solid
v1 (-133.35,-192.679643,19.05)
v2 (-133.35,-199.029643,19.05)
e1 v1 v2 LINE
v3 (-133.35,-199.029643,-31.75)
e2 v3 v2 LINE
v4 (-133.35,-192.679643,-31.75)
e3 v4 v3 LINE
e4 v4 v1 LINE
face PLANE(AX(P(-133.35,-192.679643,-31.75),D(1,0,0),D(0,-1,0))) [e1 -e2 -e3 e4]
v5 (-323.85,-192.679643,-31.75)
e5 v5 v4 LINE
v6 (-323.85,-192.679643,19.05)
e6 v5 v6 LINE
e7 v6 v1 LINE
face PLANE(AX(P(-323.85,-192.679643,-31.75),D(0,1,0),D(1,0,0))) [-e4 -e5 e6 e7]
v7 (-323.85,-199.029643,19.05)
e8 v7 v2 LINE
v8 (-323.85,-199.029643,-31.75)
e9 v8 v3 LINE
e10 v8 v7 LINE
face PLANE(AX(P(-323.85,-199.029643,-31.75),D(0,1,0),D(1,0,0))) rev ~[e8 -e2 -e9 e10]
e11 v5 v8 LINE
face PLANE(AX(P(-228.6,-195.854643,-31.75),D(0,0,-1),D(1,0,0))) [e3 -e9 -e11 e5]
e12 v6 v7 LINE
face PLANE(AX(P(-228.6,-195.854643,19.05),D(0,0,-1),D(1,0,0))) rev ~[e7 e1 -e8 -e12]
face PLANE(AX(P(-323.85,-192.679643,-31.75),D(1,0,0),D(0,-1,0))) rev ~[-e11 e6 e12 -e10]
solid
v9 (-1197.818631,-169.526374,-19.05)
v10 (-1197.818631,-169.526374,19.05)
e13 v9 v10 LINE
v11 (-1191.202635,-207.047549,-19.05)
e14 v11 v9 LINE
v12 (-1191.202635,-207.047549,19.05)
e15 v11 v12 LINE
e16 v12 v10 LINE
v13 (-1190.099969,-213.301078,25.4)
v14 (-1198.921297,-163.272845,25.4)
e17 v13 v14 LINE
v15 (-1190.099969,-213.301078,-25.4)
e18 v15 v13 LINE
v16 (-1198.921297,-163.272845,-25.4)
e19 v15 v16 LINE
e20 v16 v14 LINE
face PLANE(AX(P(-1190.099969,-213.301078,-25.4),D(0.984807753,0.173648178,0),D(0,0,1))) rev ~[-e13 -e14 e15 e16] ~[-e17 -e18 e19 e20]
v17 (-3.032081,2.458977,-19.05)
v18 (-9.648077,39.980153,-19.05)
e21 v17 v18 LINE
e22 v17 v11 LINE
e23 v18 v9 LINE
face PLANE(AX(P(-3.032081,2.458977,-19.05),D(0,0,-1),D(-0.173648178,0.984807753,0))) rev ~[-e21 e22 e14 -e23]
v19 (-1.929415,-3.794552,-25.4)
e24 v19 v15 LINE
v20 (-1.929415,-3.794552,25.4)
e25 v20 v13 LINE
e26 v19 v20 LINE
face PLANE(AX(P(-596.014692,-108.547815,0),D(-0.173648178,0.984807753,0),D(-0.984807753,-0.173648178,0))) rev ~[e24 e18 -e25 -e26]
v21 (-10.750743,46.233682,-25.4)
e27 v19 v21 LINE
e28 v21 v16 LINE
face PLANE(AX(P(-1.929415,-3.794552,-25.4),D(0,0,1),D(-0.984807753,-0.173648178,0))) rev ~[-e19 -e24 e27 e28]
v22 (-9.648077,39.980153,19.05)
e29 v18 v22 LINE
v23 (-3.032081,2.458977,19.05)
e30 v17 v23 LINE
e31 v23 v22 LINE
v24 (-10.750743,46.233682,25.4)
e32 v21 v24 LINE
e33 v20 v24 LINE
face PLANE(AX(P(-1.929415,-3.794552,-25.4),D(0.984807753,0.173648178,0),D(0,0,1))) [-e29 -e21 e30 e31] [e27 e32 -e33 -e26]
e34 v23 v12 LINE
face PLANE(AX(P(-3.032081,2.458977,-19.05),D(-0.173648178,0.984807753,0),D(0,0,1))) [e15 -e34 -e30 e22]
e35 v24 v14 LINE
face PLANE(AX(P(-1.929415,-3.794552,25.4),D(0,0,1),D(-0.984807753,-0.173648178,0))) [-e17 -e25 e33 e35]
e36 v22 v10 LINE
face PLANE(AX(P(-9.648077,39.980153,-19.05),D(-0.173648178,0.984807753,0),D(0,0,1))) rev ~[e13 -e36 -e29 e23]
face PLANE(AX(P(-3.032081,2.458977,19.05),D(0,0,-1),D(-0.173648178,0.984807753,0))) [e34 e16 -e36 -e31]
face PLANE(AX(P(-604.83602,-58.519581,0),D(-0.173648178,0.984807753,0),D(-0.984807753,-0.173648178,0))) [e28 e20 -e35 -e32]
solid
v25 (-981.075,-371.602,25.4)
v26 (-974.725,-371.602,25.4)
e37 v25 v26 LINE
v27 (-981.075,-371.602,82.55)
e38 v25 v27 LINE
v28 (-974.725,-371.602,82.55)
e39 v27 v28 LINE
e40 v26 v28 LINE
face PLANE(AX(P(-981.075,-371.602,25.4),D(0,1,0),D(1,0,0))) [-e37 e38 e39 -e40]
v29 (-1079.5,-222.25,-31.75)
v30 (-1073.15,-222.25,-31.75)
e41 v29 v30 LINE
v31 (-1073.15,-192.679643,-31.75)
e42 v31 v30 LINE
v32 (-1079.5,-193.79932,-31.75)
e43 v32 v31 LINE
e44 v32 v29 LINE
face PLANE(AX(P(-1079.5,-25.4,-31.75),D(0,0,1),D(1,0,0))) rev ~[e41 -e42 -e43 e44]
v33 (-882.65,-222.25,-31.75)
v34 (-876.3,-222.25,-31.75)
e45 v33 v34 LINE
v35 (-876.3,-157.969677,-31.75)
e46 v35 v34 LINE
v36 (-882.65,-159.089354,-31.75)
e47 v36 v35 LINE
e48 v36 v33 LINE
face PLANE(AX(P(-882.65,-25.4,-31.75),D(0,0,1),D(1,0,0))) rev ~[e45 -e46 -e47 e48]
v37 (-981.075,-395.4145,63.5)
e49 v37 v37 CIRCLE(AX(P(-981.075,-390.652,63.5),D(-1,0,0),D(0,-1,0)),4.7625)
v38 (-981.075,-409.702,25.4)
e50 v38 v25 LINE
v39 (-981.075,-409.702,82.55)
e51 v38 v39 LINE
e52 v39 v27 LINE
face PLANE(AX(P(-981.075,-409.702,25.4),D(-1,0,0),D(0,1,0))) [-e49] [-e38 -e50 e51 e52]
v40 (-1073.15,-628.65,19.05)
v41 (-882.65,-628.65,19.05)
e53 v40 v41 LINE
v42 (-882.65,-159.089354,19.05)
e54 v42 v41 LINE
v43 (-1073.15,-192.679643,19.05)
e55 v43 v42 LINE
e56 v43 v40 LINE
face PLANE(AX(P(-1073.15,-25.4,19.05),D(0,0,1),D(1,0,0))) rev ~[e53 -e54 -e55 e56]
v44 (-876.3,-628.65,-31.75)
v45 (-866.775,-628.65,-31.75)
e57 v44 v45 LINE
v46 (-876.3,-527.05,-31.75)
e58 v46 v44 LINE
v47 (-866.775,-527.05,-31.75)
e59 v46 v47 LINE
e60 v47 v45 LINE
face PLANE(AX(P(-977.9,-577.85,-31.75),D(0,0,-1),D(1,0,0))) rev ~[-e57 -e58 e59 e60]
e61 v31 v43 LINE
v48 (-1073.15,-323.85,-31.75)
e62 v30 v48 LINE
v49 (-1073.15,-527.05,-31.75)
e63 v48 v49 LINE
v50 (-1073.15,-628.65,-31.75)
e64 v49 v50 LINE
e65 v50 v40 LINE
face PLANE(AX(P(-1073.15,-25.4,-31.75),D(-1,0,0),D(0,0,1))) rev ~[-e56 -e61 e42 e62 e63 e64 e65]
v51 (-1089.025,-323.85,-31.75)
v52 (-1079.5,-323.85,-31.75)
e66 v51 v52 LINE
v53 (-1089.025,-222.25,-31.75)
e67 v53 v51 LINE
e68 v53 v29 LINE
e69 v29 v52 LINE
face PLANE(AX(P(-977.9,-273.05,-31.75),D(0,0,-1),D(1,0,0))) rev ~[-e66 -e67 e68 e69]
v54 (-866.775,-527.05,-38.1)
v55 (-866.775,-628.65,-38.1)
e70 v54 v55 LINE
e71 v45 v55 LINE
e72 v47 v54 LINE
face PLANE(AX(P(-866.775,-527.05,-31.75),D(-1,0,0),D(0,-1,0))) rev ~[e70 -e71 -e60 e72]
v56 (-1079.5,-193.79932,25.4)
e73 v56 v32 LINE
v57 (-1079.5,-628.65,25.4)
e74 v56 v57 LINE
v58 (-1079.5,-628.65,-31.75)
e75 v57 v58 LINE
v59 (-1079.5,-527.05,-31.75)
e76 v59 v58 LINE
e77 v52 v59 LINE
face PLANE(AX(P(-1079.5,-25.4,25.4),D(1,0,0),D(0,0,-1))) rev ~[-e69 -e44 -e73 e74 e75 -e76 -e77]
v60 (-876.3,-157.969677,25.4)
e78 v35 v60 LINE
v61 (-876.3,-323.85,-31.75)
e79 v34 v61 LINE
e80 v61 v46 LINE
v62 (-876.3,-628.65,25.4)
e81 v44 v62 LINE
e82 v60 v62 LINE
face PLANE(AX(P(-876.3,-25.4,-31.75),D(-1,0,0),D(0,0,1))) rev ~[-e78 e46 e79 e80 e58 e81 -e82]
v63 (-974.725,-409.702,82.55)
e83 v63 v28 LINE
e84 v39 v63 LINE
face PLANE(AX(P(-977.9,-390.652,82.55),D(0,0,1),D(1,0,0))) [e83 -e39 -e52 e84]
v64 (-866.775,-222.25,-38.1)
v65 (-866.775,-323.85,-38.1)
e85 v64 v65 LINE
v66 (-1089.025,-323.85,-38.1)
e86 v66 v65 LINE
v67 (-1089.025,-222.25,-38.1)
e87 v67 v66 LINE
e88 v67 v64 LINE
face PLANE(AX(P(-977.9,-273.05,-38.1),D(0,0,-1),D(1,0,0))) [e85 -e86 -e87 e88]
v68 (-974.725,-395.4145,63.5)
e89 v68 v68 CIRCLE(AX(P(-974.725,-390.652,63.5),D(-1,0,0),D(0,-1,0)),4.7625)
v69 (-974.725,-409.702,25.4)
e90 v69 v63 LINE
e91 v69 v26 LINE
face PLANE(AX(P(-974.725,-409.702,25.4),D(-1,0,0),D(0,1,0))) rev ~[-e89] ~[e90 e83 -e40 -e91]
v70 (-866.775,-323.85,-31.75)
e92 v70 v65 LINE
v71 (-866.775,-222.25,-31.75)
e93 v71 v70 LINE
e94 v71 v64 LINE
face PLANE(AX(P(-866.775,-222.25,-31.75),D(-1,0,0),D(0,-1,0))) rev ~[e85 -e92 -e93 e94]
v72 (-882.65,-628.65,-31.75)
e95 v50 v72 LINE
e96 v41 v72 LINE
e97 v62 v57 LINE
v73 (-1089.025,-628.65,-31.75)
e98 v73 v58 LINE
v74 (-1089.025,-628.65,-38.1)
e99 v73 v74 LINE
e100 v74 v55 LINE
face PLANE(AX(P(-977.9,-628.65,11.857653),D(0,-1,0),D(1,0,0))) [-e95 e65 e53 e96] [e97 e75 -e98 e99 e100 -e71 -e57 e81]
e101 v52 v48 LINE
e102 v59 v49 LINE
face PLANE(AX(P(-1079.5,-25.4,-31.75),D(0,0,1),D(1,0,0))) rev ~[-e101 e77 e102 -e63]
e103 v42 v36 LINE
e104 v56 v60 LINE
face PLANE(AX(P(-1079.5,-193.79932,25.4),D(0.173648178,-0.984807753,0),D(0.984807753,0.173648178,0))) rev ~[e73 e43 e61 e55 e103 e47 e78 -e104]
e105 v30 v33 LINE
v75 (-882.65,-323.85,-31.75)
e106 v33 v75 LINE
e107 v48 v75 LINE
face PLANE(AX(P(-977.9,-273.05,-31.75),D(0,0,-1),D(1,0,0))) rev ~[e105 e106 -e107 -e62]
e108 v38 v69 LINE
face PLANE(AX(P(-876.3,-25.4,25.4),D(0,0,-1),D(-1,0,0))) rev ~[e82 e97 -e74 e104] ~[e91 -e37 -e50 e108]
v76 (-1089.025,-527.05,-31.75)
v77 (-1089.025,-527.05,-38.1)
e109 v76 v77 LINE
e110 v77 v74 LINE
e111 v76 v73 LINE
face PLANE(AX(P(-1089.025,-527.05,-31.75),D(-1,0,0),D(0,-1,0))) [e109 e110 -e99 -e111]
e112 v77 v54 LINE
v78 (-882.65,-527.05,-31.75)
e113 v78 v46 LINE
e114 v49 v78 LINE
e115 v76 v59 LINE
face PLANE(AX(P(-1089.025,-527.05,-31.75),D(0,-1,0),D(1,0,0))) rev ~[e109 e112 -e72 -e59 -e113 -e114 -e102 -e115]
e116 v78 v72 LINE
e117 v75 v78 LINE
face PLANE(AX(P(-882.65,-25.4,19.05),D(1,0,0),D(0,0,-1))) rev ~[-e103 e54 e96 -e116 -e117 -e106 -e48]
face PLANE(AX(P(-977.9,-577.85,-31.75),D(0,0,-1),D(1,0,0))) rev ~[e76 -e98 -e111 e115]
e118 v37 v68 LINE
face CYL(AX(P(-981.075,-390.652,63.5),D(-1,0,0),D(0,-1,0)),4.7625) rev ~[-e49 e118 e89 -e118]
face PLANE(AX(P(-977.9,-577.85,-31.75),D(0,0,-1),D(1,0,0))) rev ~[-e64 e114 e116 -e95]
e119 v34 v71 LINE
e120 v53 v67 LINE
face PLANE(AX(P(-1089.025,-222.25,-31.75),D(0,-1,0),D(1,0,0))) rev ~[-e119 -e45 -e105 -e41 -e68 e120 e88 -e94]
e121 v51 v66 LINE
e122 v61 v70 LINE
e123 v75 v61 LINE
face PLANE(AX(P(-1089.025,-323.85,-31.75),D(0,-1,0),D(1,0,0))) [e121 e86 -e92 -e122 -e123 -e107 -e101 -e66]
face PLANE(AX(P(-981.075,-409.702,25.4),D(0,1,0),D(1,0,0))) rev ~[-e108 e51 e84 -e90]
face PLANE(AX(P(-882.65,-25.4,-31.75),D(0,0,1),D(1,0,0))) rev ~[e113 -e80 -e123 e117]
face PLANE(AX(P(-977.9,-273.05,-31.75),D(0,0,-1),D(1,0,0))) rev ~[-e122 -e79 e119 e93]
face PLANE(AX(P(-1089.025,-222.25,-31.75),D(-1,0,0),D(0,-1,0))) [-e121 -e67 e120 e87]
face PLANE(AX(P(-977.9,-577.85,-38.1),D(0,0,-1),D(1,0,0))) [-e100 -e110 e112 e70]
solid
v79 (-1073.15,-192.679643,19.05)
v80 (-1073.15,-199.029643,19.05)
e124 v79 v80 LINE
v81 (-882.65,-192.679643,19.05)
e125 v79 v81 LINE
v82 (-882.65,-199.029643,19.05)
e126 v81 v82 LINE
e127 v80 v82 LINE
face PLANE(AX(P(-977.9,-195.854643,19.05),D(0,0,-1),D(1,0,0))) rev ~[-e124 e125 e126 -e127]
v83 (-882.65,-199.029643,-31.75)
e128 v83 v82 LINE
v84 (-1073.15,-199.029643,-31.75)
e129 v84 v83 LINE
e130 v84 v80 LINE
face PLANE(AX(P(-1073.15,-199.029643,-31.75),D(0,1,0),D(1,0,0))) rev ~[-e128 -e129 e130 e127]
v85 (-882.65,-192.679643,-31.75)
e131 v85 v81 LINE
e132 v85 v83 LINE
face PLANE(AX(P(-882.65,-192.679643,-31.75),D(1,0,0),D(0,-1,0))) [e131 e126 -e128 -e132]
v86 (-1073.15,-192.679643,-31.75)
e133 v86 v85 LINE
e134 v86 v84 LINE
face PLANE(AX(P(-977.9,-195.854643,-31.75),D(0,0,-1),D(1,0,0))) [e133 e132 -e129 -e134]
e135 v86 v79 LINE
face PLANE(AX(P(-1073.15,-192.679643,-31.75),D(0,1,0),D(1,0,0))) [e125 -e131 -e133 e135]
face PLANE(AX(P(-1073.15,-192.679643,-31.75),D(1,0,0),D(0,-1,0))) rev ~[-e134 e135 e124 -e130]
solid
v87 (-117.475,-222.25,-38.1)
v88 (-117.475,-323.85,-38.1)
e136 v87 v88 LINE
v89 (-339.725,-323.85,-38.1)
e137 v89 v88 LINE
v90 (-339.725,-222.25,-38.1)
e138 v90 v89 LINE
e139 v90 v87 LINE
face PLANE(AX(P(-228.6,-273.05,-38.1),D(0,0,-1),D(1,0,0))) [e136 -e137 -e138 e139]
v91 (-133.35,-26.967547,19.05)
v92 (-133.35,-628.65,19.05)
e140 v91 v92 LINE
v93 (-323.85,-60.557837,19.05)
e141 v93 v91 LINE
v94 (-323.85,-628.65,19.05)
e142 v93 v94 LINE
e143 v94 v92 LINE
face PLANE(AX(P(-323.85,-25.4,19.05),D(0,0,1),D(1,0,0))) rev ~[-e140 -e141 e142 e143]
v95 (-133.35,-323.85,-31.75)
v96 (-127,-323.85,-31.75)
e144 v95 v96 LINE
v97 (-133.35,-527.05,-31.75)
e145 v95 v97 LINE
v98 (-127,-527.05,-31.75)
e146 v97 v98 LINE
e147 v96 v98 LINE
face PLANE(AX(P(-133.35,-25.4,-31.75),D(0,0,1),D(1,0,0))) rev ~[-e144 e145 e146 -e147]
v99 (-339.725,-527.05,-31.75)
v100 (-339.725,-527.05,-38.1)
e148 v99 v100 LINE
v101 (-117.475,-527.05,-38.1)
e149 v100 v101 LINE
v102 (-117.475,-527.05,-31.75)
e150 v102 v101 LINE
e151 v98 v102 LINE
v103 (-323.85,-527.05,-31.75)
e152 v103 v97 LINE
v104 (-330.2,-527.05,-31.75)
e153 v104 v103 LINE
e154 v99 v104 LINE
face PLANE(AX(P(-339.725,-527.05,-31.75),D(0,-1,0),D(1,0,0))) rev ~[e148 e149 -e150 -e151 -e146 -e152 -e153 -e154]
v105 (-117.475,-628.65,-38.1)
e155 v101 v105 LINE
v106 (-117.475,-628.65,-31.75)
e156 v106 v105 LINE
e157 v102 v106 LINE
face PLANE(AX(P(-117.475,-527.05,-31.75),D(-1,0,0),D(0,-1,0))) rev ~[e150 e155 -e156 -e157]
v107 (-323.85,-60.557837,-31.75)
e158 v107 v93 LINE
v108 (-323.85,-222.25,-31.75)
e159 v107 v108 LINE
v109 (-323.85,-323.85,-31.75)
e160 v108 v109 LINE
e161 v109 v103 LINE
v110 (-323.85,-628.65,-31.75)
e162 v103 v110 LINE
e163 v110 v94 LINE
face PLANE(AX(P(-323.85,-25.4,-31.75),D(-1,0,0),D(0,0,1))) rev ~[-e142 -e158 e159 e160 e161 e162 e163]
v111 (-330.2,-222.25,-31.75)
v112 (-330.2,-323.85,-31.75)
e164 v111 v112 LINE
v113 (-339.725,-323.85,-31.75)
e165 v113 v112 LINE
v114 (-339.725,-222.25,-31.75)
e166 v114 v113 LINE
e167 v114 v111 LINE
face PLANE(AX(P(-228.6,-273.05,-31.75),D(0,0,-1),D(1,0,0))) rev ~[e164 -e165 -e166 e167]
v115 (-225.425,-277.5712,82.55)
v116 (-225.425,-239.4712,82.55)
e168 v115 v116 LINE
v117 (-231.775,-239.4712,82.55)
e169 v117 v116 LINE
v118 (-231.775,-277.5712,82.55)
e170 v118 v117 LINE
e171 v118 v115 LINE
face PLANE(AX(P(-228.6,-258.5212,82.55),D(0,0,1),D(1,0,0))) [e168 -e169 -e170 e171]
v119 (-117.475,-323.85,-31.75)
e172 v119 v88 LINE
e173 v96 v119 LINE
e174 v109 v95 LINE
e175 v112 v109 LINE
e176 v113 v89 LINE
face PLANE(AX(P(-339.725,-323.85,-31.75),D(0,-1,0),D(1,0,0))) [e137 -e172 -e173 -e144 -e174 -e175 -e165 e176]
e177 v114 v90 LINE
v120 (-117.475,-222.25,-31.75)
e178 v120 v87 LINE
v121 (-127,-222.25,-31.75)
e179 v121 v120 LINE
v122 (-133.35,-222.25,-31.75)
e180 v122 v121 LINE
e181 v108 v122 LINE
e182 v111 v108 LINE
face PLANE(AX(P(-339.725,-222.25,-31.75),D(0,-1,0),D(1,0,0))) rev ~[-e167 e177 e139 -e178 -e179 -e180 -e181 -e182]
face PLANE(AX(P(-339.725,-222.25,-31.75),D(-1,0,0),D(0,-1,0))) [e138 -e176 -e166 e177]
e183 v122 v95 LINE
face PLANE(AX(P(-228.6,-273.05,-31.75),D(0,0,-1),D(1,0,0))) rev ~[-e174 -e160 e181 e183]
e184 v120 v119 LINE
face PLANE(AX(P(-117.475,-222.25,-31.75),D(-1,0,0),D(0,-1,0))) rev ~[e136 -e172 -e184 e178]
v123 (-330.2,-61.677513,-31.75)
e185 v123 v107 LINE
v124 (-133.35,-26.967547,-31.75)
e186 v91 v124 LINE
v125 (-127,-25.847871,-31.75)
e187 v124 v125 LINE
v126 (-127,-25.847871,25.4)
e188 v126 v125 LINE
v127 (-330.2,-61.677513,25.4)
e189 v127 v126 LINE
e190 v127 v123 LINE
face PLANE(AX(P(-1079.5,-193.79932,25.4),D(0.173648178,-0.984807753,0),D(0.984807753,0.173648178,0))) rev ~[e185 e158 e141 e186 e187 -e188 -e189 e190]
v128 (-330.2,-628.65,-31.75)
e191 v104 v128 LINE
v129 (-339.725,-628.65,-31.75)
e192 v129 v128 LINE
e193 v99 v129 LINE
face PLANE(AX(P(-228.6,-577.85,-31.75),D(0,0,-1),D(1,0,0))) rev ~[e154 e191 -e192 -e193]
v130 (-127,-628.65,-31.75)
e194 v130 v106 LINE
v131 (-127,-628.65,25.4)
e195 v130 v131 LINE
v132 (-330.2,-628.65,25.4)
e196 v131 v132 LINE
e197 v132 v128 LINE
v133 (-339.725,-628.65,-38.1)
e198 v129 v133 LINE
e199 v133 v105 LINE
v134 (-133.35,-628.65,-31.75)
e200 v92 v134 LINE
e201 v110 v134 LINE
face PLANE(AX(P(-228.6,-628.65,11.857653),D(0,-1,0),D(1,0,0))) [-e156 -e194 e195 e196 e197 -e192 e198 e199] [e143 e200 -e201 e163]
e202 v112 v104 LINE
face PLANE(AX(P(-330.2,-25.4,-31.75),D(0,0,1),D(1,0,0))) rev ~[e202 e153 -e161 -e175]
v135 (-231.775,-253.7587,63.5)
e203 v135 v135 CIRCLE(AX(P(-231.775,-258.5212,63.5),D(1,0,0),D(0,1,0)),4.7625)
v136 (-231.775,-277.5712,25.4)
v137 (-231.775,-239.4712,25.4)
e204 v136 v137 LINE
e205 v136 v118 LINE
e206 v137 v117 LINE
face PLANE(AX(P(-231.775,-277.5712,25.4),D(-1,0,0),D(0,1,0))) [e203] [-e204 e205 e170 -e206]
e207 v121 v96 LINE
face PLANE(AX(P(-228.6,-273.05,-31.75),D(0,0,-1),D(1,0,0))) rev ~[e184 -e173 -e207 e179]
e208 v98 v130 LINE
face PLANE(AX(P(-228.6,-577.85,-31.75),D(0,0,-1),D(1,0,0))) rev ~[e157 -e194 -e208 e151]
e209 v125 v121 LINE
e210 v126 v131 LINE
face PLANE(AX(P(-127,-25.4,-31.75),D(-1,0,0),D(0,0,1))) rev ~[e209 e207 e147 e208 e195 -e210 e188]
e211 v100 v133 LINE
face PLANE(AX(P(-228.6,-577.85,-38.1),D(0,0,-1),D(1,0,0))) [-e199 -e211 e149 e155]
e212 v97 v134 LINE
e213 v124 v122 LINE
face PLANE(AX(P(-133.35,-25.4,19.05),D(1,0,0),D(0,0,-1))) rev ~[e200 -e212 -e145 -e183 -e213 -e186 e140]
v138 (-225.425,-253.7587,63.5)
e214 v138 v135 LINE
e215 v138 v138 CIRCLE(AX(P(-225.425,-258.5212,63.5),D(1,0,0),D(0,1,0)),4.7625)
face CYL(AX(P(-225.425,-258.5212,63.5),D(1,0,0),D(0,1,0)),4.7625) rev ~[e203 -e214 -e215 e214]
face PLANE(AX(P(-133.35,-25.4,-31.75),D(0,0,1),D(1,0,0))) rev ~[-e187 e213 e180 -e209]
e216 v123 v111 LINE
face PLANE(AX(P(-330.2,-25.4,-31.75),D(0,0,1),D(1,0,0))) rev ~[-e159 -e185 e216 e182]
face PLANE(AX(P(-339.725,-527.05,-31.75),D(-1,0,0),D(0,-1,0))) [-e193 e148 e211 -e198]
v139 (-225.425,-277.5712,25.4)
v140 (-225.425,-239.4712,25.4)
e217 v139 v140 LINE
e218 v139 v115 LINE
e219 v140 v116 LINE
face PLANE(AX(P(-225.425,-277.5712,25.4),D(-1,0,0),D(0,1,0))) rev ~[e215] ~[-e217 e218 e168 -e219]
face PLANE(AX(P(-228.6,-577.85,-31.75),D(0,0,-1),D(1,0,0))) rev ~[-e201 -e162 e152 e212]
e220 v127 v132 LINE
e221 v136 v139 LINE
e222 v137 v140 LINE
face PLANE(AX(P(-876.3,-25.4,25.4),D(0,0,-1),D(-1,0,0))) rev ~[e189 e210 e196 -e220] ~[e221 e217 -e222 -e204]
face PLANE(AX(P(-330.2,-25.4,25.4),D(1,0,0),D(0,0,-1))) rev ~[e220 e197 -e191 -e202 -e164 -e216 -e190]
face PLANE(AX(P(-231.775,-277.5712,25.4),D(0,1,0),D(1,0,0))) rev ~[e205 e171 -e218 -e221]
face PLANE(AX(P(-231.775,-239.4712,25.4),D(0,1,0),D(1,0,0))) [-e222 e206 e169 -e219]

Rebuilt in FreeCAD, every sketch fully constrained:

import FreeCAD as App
import Part
import Sketcher
Q = App.Units.Quantity

doc = App.newDocument("Part")
params = doc.addObject("Spreadsheet::Sheet", "Params")
for row, (alias, value) in enumerate([
    ("sketch1_width", "2 in"),
    ("sketch1_width2", "1.5 in"),
    ("pad1_length", "47.5 in"),
    ("sketch2_width", "8 in"),
    ("sketch2_height", "2 in"),
    ("sketch2_width2", "7.5 in"),
    ("sketch2_height2", "2.25 in"),
    ("pad2_length", "23.75 in"),
    ("sketch3_height", "4 in"),
    ("sketch3_width", "8.75 in"),
    ("pad3_length", "0.25 in"),
    ("sketch4_height", "1.5 in"),
    ("sketch4_width", "0.25 in"),
    ("pad4_length", "2.25 in"),
    ("sketch5_diameter", "0.375 in"),
    ("pocket1_length", "30 in"),
    ("sketch6_width", "37.5 in"),
    ("pocket2_length", "5 in"),
    ("pocket3_length", "5 in"),
    ("sketch8_diameter", "0.375 in"),
    ("pocket4_length", "1 in"),
    ("sketch9_height", "2 in"),
    ("sketch9_width", "47.5 in"),
    ("pad5_length", "2 in"),
    ("sketch10_width", "1.5 in"),
    ("pocket5_length", "50 in"),
    ("sketch11_width", "7.5 in"),
    ("sketch11_height", "0.25 in"),
    ("pad6_length", "2 in"),
    ("sketch12_width", "7.5 in"),
    ("sketch12_height", "0.25 in"),
    ("pad7_length", "2 in"),
], start=1):
    params.set(f"A{row}", alias)
    params.set(f"B{row}", "=" + value)
    params.setAlias(f"B{row}", alias)

body = doc.addObject("PartDesign::Body", "Body")
body.AllowCompound = True

# Sketch on YZ plane
sketch1 = body.newObject("Sketcher::SketchObject", "Sketch")
sketch1.AttachmentSupport = (doc.getObject("YZ_Plane"), [""])
sketch1.MapMode = "FlatFace"
sketch1.addGeometry([
    Part.LineSegment(App.Vector(-25, 25, 0), App.Vector(-25, -25, 0)),  # 0
    Part.LineSegment(App.Vector(-25, -25, 0), App.Vector(25, -25, 0)),  # 1
    Part.LineSegment(App.Vector(25, -25, 0), App.Vector(25, 25, 0)),  # 2
    Part.LineSegment(App.Vector(25, 25, 0), App.Vector(-25, 25, 0)),  # 3
    Part.LineSegment(App.Vector(19, -19, 0), App.Vector(-19, -19, 0)),  # 4
    Part.LineSegment(App.Vector(-19, -19, 0), App.Vector(-19, 19, 0)),  # 5
    Part.LineSegment(App.Vector(-19, 19, 0), App.Vector(19, 19, 0)),  # 6
    Part.LineSegment(App.Vector(19, 19, 0), App.Vector(19, -19, 0)),  # 7
], False)
sketch1.addConstraint([
    Sketcher.Constraint("Coincident", 0, 2, 1, 1),
    Sketcher.Constraint("Coincident", 1, 2, 2, 1),
    Sketcher.Constraint("Coincident", 2, 2, 3, 1),
    Sketcher.Constraint("Coincident", 3, 2, 0, 1),
    Sketcher.Constraint("Coincident", 4, 2, 5, 1),
    Sketcher.Constraint("Coincident", 5, 2, 6, 1),
    Sketcher.Constraint("Coincident", 6, 2, 7, 1),
    Sketcher.Constraint("Coincident", 7, 2, 4, 1),
    Sketcher.Constraint("Vertical", 0),
    Sketcher.Constraint("Horizontal", 1),
    Sketcher.Constraint("Vertical", 2),
    Sketcher.Constraint("Horizontal", 3),
    Sketcher.Constraint("Horizontal", 4),
    Sketcher.Constraint("Vertical", 5),
    Sketcher.Constraint("Horizontal", 6),
    Sketcher.Constraint("Vertical", 7),
    Sketcher.Constraint("Symmetric", 0, 2, 2, 2, -1, 1),
    Sketcher.Constraint("Symmetric", 4, 2, 6, 2, -1, 1),
    Sketcher.Constraint("Equal", 3, 0),
    Sketcher.Constraint("Equal", 6, 5),
    Sketcher.Constraint("DistanceX", 1, 1, 1, 2, Q("2 in")),
    Sketcher.Constraint("DistanceX", 4, 2, 4, 1, Q("1.5 in")),
])
sketch1.setExpression("Constraints[20]", "Params.sketch1_width")
sketch1.setExpression("Constraints[21]", "Params.sketch1_width2")
pad1 = body.newObject("PartDesign::Pad", "Pad")
pad1.Profile = sketch1
pad1.setExpression("Length", "Params.pad1_length")
pad1.Reversed = True

# Sketch on XZ plane
sketch2 = body.newObject("Sketcher::SketchObject", "Sketch001")
sketch2.AttachmentSupport = (doc.getObject("XZ_Plane"), [""])
sketch2.MapMode = "FlatFace"
sketch2.AttachmentOffset = App.Placement(App.Vector(0, 0, 1 * 25.4), App.Rotation())
sketch2.addGeometry([
    Part.LineSegment(App.Vector(-876, 25, 0), App.Vector(-1080, 25, 0)),  # 0
    Part.LineSegment(App.Vector(-1080, 25, 0), App.Vector(-1080, -32, 0)),  # 1
    Part.LineSegment(App.Vector(-1080, -32, 0), App.Vector(-1073, -32, 0)),  # 2
    Part.LineSegment(App.Vector(-1073, -32, 0), App.Vector(-1073, 19, 0)),  # 3
    Part.LineSegment(App.Vector(-1073, 19, 0), App.Vector(-883, 19, 0)),  # 4
    Part.LineSegment(App.Vector(-883, 19, 0), App.Vector(-883, -32, 0)),  # 5
    Part.LineSegment(App.Vector(-883, -32, 0), App.Vector(-876, -32, 0)),  # 6
    Part.LineSegment(App.Vector(-876, -32, 0), App.Vector(-876, 25, 0)),  # 7
    Part.LineSegment(App.Vector(-127, -32, 0), App.Vector(-127, 25, 0)),  # 8
    Part.LineSegment(App.Vector(-127, 25, 0), App.Vector(-330, 25, 0)),  # 9
    Part.LineSegment(App.Vector(-330, 25, 0), App.Vector(-330, -32, 0)),  # 10
    Part.LineSegment(App.Vector(-330, -32, 0), App.Vector(-324, -32, 0)),  # 11
    Part.LineSegment(App.Vector(-324, -32, 0), App.Vector(-324, 19, 0)),  # 12
    Part.LineSegment(App.Vector(-324, 19, 0), App.Vector(-133, 19, 0)),  # 13
    Part.LineSegment(App.Vector(-133, 19, 0), App.Vector(-133, -32, 0)),  # 14
    Part.LineSegment(App.Vector(-133, -32, 0), App.Vector(-127, -32, 0)),  # 15
], False)
sketch2.addConstraint([
    Sketcher.Constraint("Coincident", 0, 2, 1, 1),
    Sketcher.Constraint("Coincident", 1, 2, 2, 1),
    Sketcher.Constraint("Coincident", 2, 2, 3, 1),
    Sketcher.Constraint("Coincident", 3, 2, 4, 1),
    Sketcher.Constraint("Coincident", 4, 2, 5, 1),
    Sketcher.Constraint("Coincident", 5, 2, 6, 1),
    Sketcher.Constraint("Coincident", 6, 2, 7, 1),
    Sketcher.Constraint("Coincident", 7, 2, 0, 1),
    Sketcher.Constraint("Coincident", 8, 2, 9, 1),
    Sketcher.Constraint("Coincident", 9, 2, 10, 1),
    Sketcher.Constraint("Coincident", 10, 2, 11, 1),
    Sketcher.Constraint("Coincident", 11, 2, 12, 1),
    Sketcher.Constraint("Coincident", 12, 2, 13, 1),
    Sketcher.Constraint("Coincident", 13, 2, 14, 1),
    Sketcher.Constraint("Coincident", 14, 2, 15, 1),
    Sketcher.Constraint("Coincident", 15, 2, 8, 1),
    Sketcher.Constraint("Horizontal", 0),
    Sketcher.Constraint("Vertical", 1),
    Sketcher.Constraint("Horizontal", 2),
    Sketcher.Constraint("Vertical", 3),
    Sketcher.Constraint("Horizontal", 4),
    Sketcher.Constraint("Vertical", 5),
    Sketcher.Constraint("Horizontal", 6),
    Sketcher.Constraint("Vertical", 7),
    Sketcher.Constraint("Vertical", 8),
    Sketcher.Constraint("Horizontal", 9),
    Sketcher.Constraint("Vertical", 10),
    Sketcher.Constraint("Horizontal", 11),
    Sketcher.Constraint("Vertical", 12),
    Sketcher.Constraint("Horizontal", 13),
    Sketcher.Constraint("Vertical", 14),
    Sketcher.Constraint("Horizontal", 15),
    Sketcher.Constraint("Horizontal", 2, 2, 5, 2),
    Sketcher.Constraint("Horizontal", 7, 2, 8, 2),
    Sketcher.Constraint("Horizontal", 6, 2, 10, 2),
    Sketcher.Constraint("Horizontal", 4, 2, 12, 2),
    Sketcher.Constraint("Horizontal", 11, 2, 14, 2),
    Sketcher.Constraint("Equal", 2, 6),
    Sketcher.Constraint("Equal", 0, 9),
    Sketcher.Constraint("Equal", 6, 11),
    Sketcher.Constraint("Equal", 4, 13),
    Sketcher.Constraint("DistanceX", 0, 2, 0, 1, Q("8 in")),
    Sketcher.Constraint("DistanceY", 3, 1, 3, 2, Q("2 in")),
    Sketcher.Constraint("DistanceX", 4, 1, 4, 2, Q("7.5 in")),
    Sketcher.Constraint("DistanceY", -1, 1, 0, 2, Q("1 in")),
    Sketcher.Constraint("DistanceX", 8, 2, -1, 1, Q("5 in")),
    Sketcher.Constraint("DistanceY", 1, 2, 1, 1, Q("2.25 in")),
    Sketcher.Constraint("DistanceX", 0, 2, -1, 1, Q("42.5 in")),
])
sketch2.setExpression("Constraints[41]", "Params.sketch2_width")
sketch2.setExpression("Constraints[42]", "Params.sketch2_height")
sketch2.setExpression("Constraints[43]", "Params.sketch2_width2")
sketch2.setExpression("Constraints[46]", "Params.sketch2_height2")
pad2 = body.newObject("PartDesign::Pad", "Pad001")
pad2.Profile = sketch2
pad2.setExpression("Length", "Params.pad2_length")

# Sketch on XY plane
sketch3 = body.newObject("Sketcher::SketchObject", "Sketch002")
sketch3.AttachmentSupport = (doc.getObject("XY_Plane"), [""])
sketch3.MapMode = "FlatFace"
sketch3.AttachmentOffset = App.Placement(App.Vector(0, 0, -1.25 * 25.4), App.Rotation())
sketch3.addGeometry([
    Part.LineSegment(App.Vector(-340, -324, 0), App.Vector(-340, -222, 0)),  # 0
    Part.LineSegment(App.Vector(-340, -222, 0), App.Vector(-117, -222, 0)),  # 1
    Part.LineSegment(App.Vector(-117, -222, 0), App.Vector(-117, -324, 0)),  # 2
    Part.LineSegment(App.Vector(-117, -324, 0), App.Vector(-340, -324, 0)),  # 3
    Part.LineSegment(App.Vector(-340, -629, 0), App.Vector(-340, -527, 0)),  # 4
    Part.LineSegment(App.Vector(-340, -527, 0), App.Vector(-117, -527, 0)),  # 5
    Part.LineSegment(App.Vector(-117, -527, 0), App.Vector(-117, -629, 0)),  # 6
    Part.LineSegment(App.Vector(-117, -629, 0), App.Vector(-340, -629, 0)),  # 7
    Part.LineSegment(App.Vector(-1089, -324, 0), App.Vector(-1089, -222, 0)),  # 8
    Part.LineSegment(App.Vector(-1089, -222, 0), App.Vector(-867, -222, 0)),  # 9
    Part.LineSegment(App.Vector(-867, -222, 0), App.Vector(-867, -324, 0)),  # 10
    Part.LineSegment(App.Vector(-867, -324, 0), App.Vector(-1089, -324, 0)),  # 11
    Part.LineSegment(App.Vector(-1089, -629, 0), App.Vector(-1089, -527, 0)),  # 12
    Part.LineSegment(App.Vector(-1089, -527, 0), App.Vector(-867, -527, 0)),  # 13
    Part.LineSegment(App.Vector(-867, -527, 0), App.Vector(-867, -629, 0)),  # 14
    Part.LineSegment(App.Vector(-867, -629, 0), App.Vector(-1089, -629, 0)),  # 15
], False)
sketch3.addConstraint([
    Sketcher.Constraint("Coincident", 0, 2, 1, 1),
    Sketcher.Constraint("Coincident", 1, 2, 2, 1),
    Sketcher.Constraint("Coincident", 2, 2, 3, 1),
    Sketcher.Constraint("Coincident", 3, 2, 0, 1),
    Sketcher.Constraint("Coincident", 4, 2, 5, 1),
    Sketcher.Constraint("Coincident", 5, 2, 6, 1),
    Sketcher.Constraint("Coincident", 6, 2, 7, 1),
    Sketcher.Constraint("Coincident", 7, 2, 4, 1),
    Sketcher.Constraint("Coincident", 8, 2, 9, 1),
    Sketcher.Constraint("Coincident", 9, 2, 10, 1),
    Sketcher.Constraint("Coincident", 10, 2, 11, 1),
    Sketcher.Constraint("Coincident", 11, 2, 8, 1),
    Sketcher.Constraint("Coincident", 12, 2, 13, 1),
    Sketcher.Constraint("Coincident", 13, 2, 14, 1),
    Sketcher.Constraint("Coincident", 14, 2, 15, 1),
    Sketcher.Constraint("Coincident", 15, 2, 12, 1),
    Sketcher.Constraint("Vertical", 0),
    Sketcher.Constraint("Horizontal", 1),
    Sketcher.Constraint("Vertical", 2),
    Sketcher.Constraint("Horizontal", 3),
    Sketcher.Constraint("Vertical", 4),
    Sketcher.Constraint("Horizontal", 5),
    Sketcher.Constraint("Vertical", 6),
    Sketcher.Constraint("Horizontal", 7),
    Sketcher.Constraint("Vertical", 8),
    Sketcher.Constraint("Horizontal", 9),
    Sketcher.Constraint("Vertical", 10),
    Sketcher.Constraint("Horizontal", 11),
    Sketcher.Constraint("Vertical", 12),
    Sketcher.Constraint("Horizontal", 13),
    Sketcher.Constraint("Vertical", 14),
    Sketcher.Constraint("Horizontal", 15),
    Sketcher.Constraint("Horizontal", 1, 2, 8, 2),
    Sketcher.Constraint("Horizontal", 3, 2, 10, 2),
    Sketcher.Constraint("Horizontal", 5, 2, 12, 2),
    Sketcher.Constraint("Horizontal", 7, 2, 14, 2),
    Sketcher.Constraint("Vertical", 3, 2, 4, 2),
    Sketcher.Constraint("Vertical", 2, 2, 5, 2),
    Sketcher.Constraint("Vertical", 11, 2, 12, 2),
    Sketcher.Constraint("Vertical", 10, 2, 13, 2),
    Sketcher.Constraint("Equal", 7, 9),
    Sketcher.Constraint("Equal", 2, 4),
    Sketcher.Constraint("DistanceY", 0, 1, 0, 2, Q("4 in")),
    Sketcher.Constraint("DistanceY", 4, 2, 3, 2, Q("8 in")),
    Sketcher.Constraint("DistanceX", 1, 1, 1, 2, Q("8.75 in")),
    Sketcher.Constraint("DistanceX", 8, 2, 0, 2, Q("29.5 in")),
    Sketcher.Constraint("DistanceY", 0, 2, -1, 1, Q("8.75 in")),
    Sketcher.Constraint("DistanceX", 0, 2, -1, 1, Q("13.375 in")),
])
sketch3.setExpression("Constraints[42]", "Params.sketch3_height")
sketch3.setExpression("Constraints[44]", "Params.sketch3_width")
pad3 = body.newObject("PartDesign::Pad", "Pad002")
pad3.Profile = sketch3
pad3.setExpression("Length", "Params.pad3_length")
pad3.Reversed = True

# Sketch on XY plane
sketch4 = body.newObject("Sketcher::SketchObject", "Sketch003")
sketch4.AttachmentSupport = (doc.getObject("XY_Plane"), [""])
sketch4.MapMode = "FlatFace"
sketch4.AttachmentOffset = App.Placement(App.Vector(0, 0, 1 * 25.4), App.Rotation())
sketch4.addGeometry([
    Part.LineSegment(App.Vector(-232, -239, 0), App.Vector(-232, -278, 0)),  # 0
    Part.LineSegment(App.Vector(-232, -278, 0), App.Vector(-225, -278, 0)),  # 1
    Part.LineSegment(App.Vector(-225, -278, 0), App.Vector(-225, -239, 0)),  # 2
    Part.LineSegment(App.Vector(-225, -239, 0), App.Vector(-232, -239, 0)),  # 3
    Part.LineSegment(App.Vector(-981, -372, 0), App.Vector(-981, -410, 0)),  # 4
    Part.LineSegment(App.Vector(-981, -410, 0), App.Vector(-975, -410, 0)),  # 5
    Part.LineSegment(App.Vector(-975, -410, 0), App.Vector(-975, -372, 0)),  # 6
    Part.LineSegment(App.Vector(-975, -372, 0), App.Vector(-981, -372, 0)),  # 7
], False)
sketch4.addConstraint([
    Sketcher.Constraint("Coincident", 0, 2, 1, 1),
    Sketcher.Constraint("Coincident", 1, 2, 2, 1),
    Sketcher.Constraint("Coincident", 2, 2, 3, 1),
    Sketcher.Constraint("Coincident", 3, 2, 0, 1),
    Sketcher.Constraint("Coincident", 4, 2, 5, 1),
    Sketcher.Constraint("Coincident", 5, 2, 6, 1),
    Sketcher.Constraint("Coincident", 6, 2, 7, 1),
    Sketcher.Constraint("Coincident", 7, 2, 4, 1),
    Sketcher.Constraint("Vertical", 0),
    Sketcher.Constraint("Horizontal", 1),
    Sketcher.Constraint("Vertical", 2),
    Sketcher.Constraint("Horizontal", 3),
    Sketcher.Constraint("Vertical", 4),
    Sketcher.Constraint("Horizontal", 5),
    Sketcher.Constraint("Vertical", 6),
    Sketcher.Constraint("Horizontal", 7),
    Sketcher.Constraint("Equal", 3, 5),
    Sketcher.Constraint("Equal", 2, 4),
    Sketcher.Constraint("DistanceY", 0, 2, 0, 1, Q("1.5 in")),
    Sketcher.Constraint("DistanceX", 1, 1, 1, 2, Q("0.25 in")),
    Sketcher.Constraint("DistanceX", 4, 2, 0, 2, Q("29.5 in")),
    Sketcher.Constraint("DistanceY", 4, 2, -1, 1, Q("16.13 in")),
    Sketcher.Constraint("DistanceX", 0, 2, -1, 1, Q("9.125 in")),
    Sketcher.Constraint("DistanceY", 0, 2, -1, 1, Q("10.928 in")),
])
sketch4.setExpression("Constraints[18]", "Params.sketch4_height")
sketch4.setExpression("Constraints[19]", "Params.sketch4_width")
pad4 = body.newObject("PartDesign::Pad", "Pad003")
pad4.Profile = sketch4
pad4.setExpression("Length", "Params.pad4_length")

# Sketch on YZ plane
sketch5 = body.newObject("Sketcher::SketchObject", "Sketch004")
sketch5.AttachmentSupport = (doc.getObject("YZ_Plane"), [""])
sketch5.MapMode = "FlatFace"
sketch5.AttachmentOffset = App.Placement(App.Vector(0, 0, -8.875 * 25.4), App.Rotation())
sketch5.addGeometry(Part.Circle(App.Vector(-258.5, 63.5, 0), App.Vector(0, 0, 1), 4.8), False)
sketch5.addConstraint([
    Sketcher.Constraint("Diameter", 0, Q("0.375 in")),
    Sketcher.Constraint("DistanceY", -1, 1, 0, 3, Q("2.5 in")),
    Sketcher.Constraint("DistanceX", 0, 3, -1, 1, Q("10.178 in")),
])
sketch5.setExpression("Constraints[0]", "Params.sketch5_diameter")
pocket1 = body.newObject("PartDesign::Pocket", "Pocket")
pocket1.Profile = sketch5
pocket1.setExpression("Length", "Params.pocket1_length")

# Sketch on XY plane
sketch6 = body.newObject("Sketcher::SketchObject", "Sketch005")
sketch6.AttachmentSupport = (doc.getObject("XY_Plane"), [""])
sketch6.MapMode = "FlatFace"
sketch6.AttachmentOffset = App.Placement(App.Vector(0, 0, 1 * 25.4), App.Rotation())
sketch6.addGeometry([
    Part.LineSegment(App.Vector(-1079.5, -25.4, 0), App.Vector(-1079.5, -193.8, 0)),
    Part.LineSegment(App.Vector(-1079.5, -193.8, 0), App.Vector(-127, -25.85, 0)),
    Part.LineSegment(App.Vector(-127, -25.85, 0), App.Vector(-127, -25.4, 0)),
    Part.LineSegment(App.Vector(-127, -25.4, 0), App.Vector(-1079.5, -25.4, 0)),
], False)
sketch6.addConstraint([
    Sketcher.Constraint("Coincident", 0, 2, 1, 1),
    Sketcher.Constraint("Coincident", 1, 2, 2, 1),
    Sketcher.Constraint("Coincident", 2, 2, 3, 1),
    Sketcher.Constraint("Coincident", 3, 2, 0, 1),
    Sketcher.Constraint("Vertical", 0),
    Sketcher.Constraint("Vertical", 2),
    Sketcher.Constraint("Horizontal", 3),
    Sketcher.Constraint("DistanceX", 3, 2, 3, 1, Q("37.5 in")),
    Sketcher.Constraint("DistanceX", 1, 2, -1, 1, Q("5 in")),
    Sketcher.Constraint("DistanceY", 2, 2, -1, 1, Q("1 in")),
    Sketcher.Constraint("Angle", 1, Q("10 deg")),
    Sketcher.Constraint("DistanceY", 0, 2, 0, 1, 168.39932),
])
sketch6.setExpression("Constraints[7]", "Params.sketch6_width")
pocket2 = body.newObject("PartDesign::Pocket", "Pocket001")
pocket2.Profile = sketch6
pocket2.setExpression("Length", "Params.pocket2_length")

# Sketch on XY plane
sketch7 = body.newObject("Sketcher::SketchObject", "Sketch006")
sketch7.AttachmentSupport = (doc.getObject("XY_Plane"), [""])
sketch7.MapMode = "FlatFace"
sketch7.AttachmentOffset = App.Placement(App.Vector(0, 0, 1 * 25.4), App.Rotation())
sketch7.addGeometry([
    Part.LineSegment(App.Vector(24, 38, 0), App.Vector(-1220, 38, 0)),
    Part.LineSegment(App.Vector(-1220, 38, 0), App.Vector(-1220, -25, 0)),
    Part.LineSegment(App.Vector(-1220, -25, 0), App.Vector(24, -25, 0)),
    Part.LineSegment(App.Vector(24, -25, 0), App.Vector(24, 38, 0)),
], False)
sketch7.addConstraint([
    Sketcher.Constraint("Coincident", 0, 2, 1, 1),
    Sketcher.Constraint("Coincident", 1, 2, 2, 1),
    Sketcher.Constraint("Coincident", 2, 2, 3, 1),
    Sketcher.Constraint("Coincident", 3, 2, 0, 1),
    Sketcher.Constraint("Horizontal", 0),
    Sketcher.Constraint("Vertical", 1),
    Sketcher.Constraint("Horizontal", 2),
    Sketcher.Constraint("Vertical", 3),
    Sketcher.Constraint("DistanceY", 1, 2, -1, 1, Q("1 in")),
    Sketcher.Constraint("DistanceX", 0, 2, 0, 1, 1243.232269),
    Sketcher.Constraint("DistanceY", 1, 2, 1, 1, 63.483177),
    Sketcher.Constraint("DistanceX", -1, 1, 2, 2, 23.565311),
])
pocket3 = body.newObject("PartDesign::Pocket", "Pocket002")
pocket3.Profile = sketch7
pocket3.setExpression("Length", "Params.pocket3_length")

# Sketch on YZ plane
sketch8 = body.newObject("Sketcher::SketchObject", "Sketch007")
sketch8.AttachmentSupport = (doc.getObject("YZ_Plane"), [""])
sketch8.MapMode = "FlatFace"
sketch8.AttachmentOffset = App.Placement(App.Vector(0, 0, -38.625 * 25.4), App.Rotation())
sketch8.addGeometry(Part.Circle(App.Vector(-390.7, 63.5, 0), App.Vector(0, 0, 1), 4.8), False)
sketch8.addConstraint([
    Sketcher.Constraint("Diameter", 0, Q("0.375 in")),
    Sketcher.Constraint("DistanceY", -1, 1, 0, 3, Q("2.5 in")),
    Sketcher.Constraint("DistanceX", 0, 3, -1, 1, Q("15.38 in")),
])
sketch8.setExpression("Constraints[0]", "Params.sketch8_diameter")
pocket4 = body.newObject("PartDesign::Pocket", "Pocket003")
pocket4.Profile = sketch8
pocket4.setExpression("Length", "Params.pocket4_length")
pocket4.Reversed = True
body2 = doc.addObject("PartDesign::Body", "Body001")

# Sketch on an angled plane
sketch9 = body2.newObject("Sketcher::SketchObject", "Sketch008")
sketch9.Placement = App.Placement(App.Vector(0.590728, -3.350183, 0), App.Rotation(App.Vector(-0.984807753, -0.173648178, 0), App.Vector(0, 0, 1), App.Vector(-0.173648178, 0.984807753, 0), "ZXY"))
sketch9.addGeometry([
    Part.LineSegment(App.Vector(3, 25, 0), App.Vector(3, -25, 0)),
    Part.LineSegment(App.Vector(3, -25, 0), App.Vector(1209, -25, 0)),
    Part.LineSegment(App.Vector(1209, -25, 0), App.Vector(1209, 25, 0)),
    Part.LineSegment(App.Vector(1209, 25, 0), App.Vector(3, 25, 0)),
], False)
sketch9.addConstraint([
    Sketcher.Constraint("Coincident", 0, 2, 1, 1),
    Sketcher.Constraint("Coincident", 1, 2, 2, 1),
    Sketcher.Constraint("Coincident", 2, 2, 3, 1),
    Sketcher.Constraint("Coincident", 3, 2, 0, 1),
    Sketcher.Constraint("Vertical", 0),
    Sketcher.Constraint("Horizontal", 1),
    Sketcher.Constraint("Vertical", 2),
    Sketcher.Constraint("Horizontal", 3),
    Sketcher.Constraint("DistanceY", 0, 2, 0, 1, Q("2 in")),
    Sketcher.Constraint("DistanceX", 1, 1, 1, 2, Q("47.5 in")),
    Sketcher.Constraint("DistanceY", 0, 2, -1, 1, Q("1 in")),
    Sketcher.Constraint("DistanceX", -1, 1, 0, 2, 2.55902),
])
sketch9.setExpression("Constraints[8]", "Params.sketch9_height")
sketch9.setExpression("Constraints[9]", "Params.sketch9_width")
pad5 = body2.newObject("PartDesign::Pad", "Pad004")
pad5.Profile = sketch9
pad5.setExpression("Length", "Params.pad5_length")

# Sketch on an angled plane
sketch10 = body2.newObject("Sketcher::SketchObject", "Sketch009")
sketch10.Placement = App.Placement(App.Vector(-2.520143, -0.444369, 0), App.Rotation(App.Vector(-0.173648178, 0.984807753, 0), App.Vector(0, 0, 1), App.Vector(0.984807753, 0.173648178, 0), "ZXY"))
sketch10.addGeometry([
    Part.LineSegment(App.Vector(3, 19, 0), App.Vector(3, -19, 0)),
    Part.LineSegment(App.Vector(3, -19, 0), App.Vector(41, -19, 0)),
    Part.LineSegment(App.Vector(41, -19, 0), App.Vector(41, 19, 0)),
    Part.LineSegment(App.Vector(41, 19, 0), App.Vector(3, 19, 0)),
], False)
sketch10.addConstraint([
    Sketcher.Constraint("Coincident", 0, 2, 1, 1),
    Sketcher.Constraint("Coincident", 1, 2, 2, 1),
    Sketcher.Constraint("Coincident", 2, 2, 3, 1),
    Sketcher.Constraint("Coincident", 3, 2, 0, 1),
    Sketcher.Constraint("Vertical", 0),
    Sketcher.Constraint("Horizontal", 1),
    Sketcher.Constraint("Vertical", 2),
    Sketcher.Constraint("Horizontal", 3),
    Sketcher.Constraint("Equal", 3, 0),
    Sketcher.Constraint("DistanceX", 1, 1, 1, 2, Q("1.5 in")),
    Sketcher.Constraint("DistanceY", 0, 2, -1, 1, Q("0.75 in")),
    Sketcher.Constraint("DistanceX", -1, 1, 0, 2, 2.948135),
])
sketch10.setExpression("Constraints[9]", "Params.sketch10_width")
pocket5 = body2.newObject("PartDesign::Pocket", "Pocket004")
pocket5.Profile = sketch10
pocket5.setExpression("Length", "Params.pocket5_length")
body3 = doc.addObject("PartDesign::Body", "Body002")

# Sketch on XY plane
sketch11 = body3.newObject("Sketcher::SketchObject", "Sketch010")
sketch11.AttachmentSupport = (doc.getObject("XY_Plane002"), [""])
sketch11.MapMode = "FlatFace"
sketch11.AttachmentOffset = App.Placement(App.Vector(0, 0, -1.25 * 25.4), App.Rotation())
sketch11.addGeometry([
    Part.LineSegment(App.Vector(-1073, -199, 0), App.Vector(-1073, -193, 0)),
    Part.LineSegment(App.Vector(-1073, -193, 0), App.Vector(-883, -193, 0)),
    Part.LineSegment(App.Vector(-883, -193, 0), App.Vector(-883, -199, 0)),
    Part.LineSegment(App.Vector(-883, -199, 0), App.Vector(-1073, -199, 0)),
], False)
sketch11.addConstraint([
    Sketcher.Constraint("Coincident", 0, 2, 1, 1),
    Sketcher.Constraint("Coincident", 1, 2, 2, 1),
    Sketcher.Constraint("Coincident", 2, 2, 3, 1),
    Sketcher.Constraint("Coincident", 3, 2, 0, 1),
    Sketcher.Constraint("Vertical", 0),
    Sketcher.Constraint("Horizontal", 1),
    Sketcher.Constraint("Vertical", 2),
    Sketcher.Constraint("Horizontal", 3),
    Sketcher.Constraint("DistanceX", 1, 1, 1, 2, Q("7.5 in")),
    Sketcher.Constraint("DistanceY", 0, 1, 0, 2, Q("0.25 in")),
    Sketcher.Constraint("DistanceX", 0, 2, -1, 1, Q("42.25 in")),
    Sketcher.Constraint("DistanceY", 0, 2, -1, 1, 192.679643),
])
sketch11.setExpression("Constraints[8]", "Params.sketch11_width")
sketch11.setExpression("Constraints[9]", "Params.sketch11_height")
pad6 = body3.newObject("PartDesign::Pad", "Pad005")
pad6.Profile = sketch11
pad6.setExpression("Length", "Params.pad6_length")
body4 = doc.addObject("PartDesign::Body", "Body003")

# Sketch on XY plane
sketch12 = body4.newObject("Sketcher::SketchObject", "Sketch011")
sketch12.AttachmentSupport = (doc.getObject("XY_Plane003"), [""])
sketch12.MapMode = "FlatFace"
sketch12.AttachmentOffset = App.Placement(App.Vector(0, 0, -1.25 * 25.4), App.Rotation())
sketch12.addGeometry([
    Part.LineSegment(App.Vector(-324, -199, 0), App.Vector(-324, -193, 0)),
    Part.LineSegment(App.Vector(-324, -193, 0), App.Vector(-133, -193, 0)),
    Part.LineSegment(App.Vector(-133, -193, 0), App.Vector(-133, -199, 0)),
    Part.LineSegment(App.Vector(-133, -199, 0), App.Vector(-324, -199, 0)),
], False)
sketch12.addConstraint([
    Sketcher.Constraint("Coincident", 0, 2, 1, 1),
    Sketcher.Constraint("Coincident", 1, 2, 2, 1),
    Sketcher.Constraint("Coincident", 2, 2, 3, 1),
    Sketcher.Constraint("Coincident", 3, 2, 0, 1),
    Sketcher.Constraint("Vertical", 0),
    Sketcher.Constraint("Horizontal", 1),
    Sketcher.Constraint("Vertical", 2),
    Sketcher.Constraint("Horizontal", 3),
    Sketcher.Constraint("DistanceX", 1, 1, 1, 2, Q("7.5 in")),
    Sketcher.Constraint("DistanceY", 0, 1, 0, 2, Q("0.25 in")),
    Sketcher.Constraint("DistanceX", 0, 2, -1, 1, Q("12.75 in")),
    Sketcher.Constraint("DistanceY", 0, 2, -1, 1, 192.679643),
])
sketch12.setExpression("Constraints[8]", "Params.sketch12_width")
sketch12.setExpression("Constraints[9]", "Params.sketch12_height")
pad7 = body4.newObject("PartDesign::Pad", "Pad006")
pad7.Profile = sketch12
pad7.setExpression("Length", "Params.pad7_length")

doc.recompute()
